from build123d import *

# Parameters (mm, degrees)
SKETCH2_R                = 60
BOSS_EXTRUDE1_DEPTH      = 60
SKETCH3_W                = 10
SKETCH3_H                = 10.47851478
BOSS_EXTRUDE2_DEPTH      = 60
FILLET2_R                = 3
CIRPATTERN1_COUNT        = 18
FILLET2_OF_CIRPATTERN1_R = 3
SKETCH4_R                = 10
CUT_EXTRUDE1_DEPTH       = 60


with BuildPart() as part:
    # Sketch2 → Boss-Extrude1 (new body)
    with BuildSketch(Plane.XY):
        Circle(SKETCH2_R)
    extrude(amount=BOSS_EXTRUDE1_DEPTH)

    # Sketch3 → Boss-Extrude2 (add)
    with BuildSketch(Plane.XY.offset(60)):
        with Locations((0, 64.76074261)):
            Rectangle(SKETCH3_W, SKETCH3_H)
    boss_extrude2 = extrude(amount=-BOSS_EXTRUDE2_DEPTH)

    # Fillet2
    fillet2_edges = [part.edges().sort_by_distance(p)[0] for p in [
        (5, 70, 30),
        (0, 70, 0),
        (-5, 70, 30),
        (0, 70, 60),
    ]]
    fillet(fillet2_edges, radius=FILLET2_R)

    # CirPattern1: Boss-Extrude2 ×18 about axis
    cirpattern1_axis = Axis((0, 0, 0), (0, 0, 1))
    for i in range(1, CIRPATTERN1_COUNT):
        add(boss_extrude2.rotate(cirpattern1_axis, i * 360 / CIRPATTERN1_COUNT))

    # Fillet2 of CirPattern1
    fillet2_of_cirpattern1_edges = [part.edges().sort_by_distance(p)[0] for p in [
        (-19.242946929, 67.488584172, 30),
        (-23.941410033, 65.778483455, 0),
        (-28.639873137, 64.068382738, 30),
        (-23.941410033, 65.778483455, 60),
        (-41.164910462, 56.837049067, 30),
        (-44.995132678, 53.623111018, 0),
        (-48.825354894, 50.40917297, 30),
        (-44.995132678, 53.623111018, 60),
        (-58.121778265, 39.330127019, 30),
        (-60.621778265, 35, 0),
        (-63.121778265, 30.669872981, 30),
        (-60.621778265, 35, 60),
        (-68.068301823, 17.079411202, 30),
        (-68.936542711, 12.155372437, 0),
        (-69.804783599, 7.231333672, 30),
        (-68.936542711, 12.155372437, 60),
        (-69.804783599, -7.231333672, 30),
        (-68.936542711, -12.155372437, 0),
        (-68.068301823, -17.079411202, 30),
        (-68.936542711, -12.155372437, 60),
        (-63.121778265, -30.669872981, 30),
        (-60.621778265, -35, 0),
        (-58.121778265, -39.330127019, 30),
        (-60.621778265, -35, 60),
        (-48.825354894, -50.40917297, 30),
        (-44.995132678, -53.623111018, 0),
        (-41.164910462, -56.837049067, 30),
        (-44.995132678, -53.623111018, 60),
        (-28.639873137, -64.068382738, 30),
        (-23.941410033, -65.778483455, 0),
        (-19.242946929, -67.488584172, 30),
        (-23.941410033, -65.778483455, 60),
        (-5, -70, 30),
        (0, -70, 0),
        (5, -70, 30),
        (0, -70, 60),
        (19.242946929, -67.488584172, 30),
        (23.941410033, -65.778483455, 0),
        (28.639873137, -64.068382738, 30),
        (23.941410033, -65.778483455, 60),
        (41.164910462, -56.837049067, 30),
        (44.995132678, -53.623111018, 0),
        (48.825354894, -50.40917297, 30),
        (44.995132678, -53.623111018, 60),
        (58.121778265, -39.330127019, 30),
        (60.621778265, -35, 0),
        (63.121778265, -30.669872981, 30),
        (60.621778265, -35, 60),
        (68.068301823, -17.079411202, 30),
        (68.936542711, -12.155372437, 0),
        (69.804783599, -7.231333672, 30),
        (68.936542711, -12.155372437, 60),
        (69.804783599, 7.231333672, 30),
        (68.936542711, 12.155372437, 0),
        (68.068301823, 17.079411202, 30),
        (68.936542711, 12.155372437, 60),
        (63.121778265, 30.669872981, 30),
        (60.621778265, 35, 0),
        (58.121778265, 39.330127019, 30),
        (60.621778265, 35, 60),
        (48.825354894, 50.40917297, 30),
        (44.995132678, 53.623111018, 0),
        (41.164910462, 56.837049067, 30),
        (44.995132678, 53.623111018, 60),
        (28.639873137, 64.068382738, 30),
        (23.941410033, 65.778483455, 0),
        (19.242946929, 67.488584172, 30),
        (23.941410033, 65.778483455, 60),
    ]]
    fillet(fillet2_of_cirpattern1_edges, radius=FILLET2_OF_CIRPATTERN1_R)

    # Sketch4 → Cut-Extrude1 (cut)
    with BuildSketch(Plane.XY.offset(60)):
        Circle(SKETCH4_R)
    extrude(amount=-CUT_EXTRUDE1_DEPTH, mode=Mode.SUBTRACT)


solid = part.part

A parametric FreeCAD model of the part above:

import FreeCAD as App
import Part
import Sketcher
from FreeCAD import Vector


def edges_at(feature, points):
    """Names of the edges that pass closest to the given points."""
    edges = feature.Shape.Edges
    near = lambda p: min(range(len(edges)), key=lambda i: edges[i].distToShape(Part.Vertex(*p))[0])
    return sorted({f"Edge{near(p) + 1}" for p in points})


def add_polygon(sketch, points):
    """Adds a closed chain of lines whose ends are joined by coincident constraints."""
    first, n = sketch.GeometryCount, len(points)
    for a, b in zip(points, points[1:] + points[:1]):
        sketch.addGeometry(Part.LineSegment(App.Vector(*a, 0), App.Vector(*b, 0)), False)
    for i in range(n):
        sketch.addConstraint(Sketcher.Constraint("Coincident", first + i, 2, first + (i + 1) % n, 1))

doc = App.newDocument("Part")
params = doc.addObject("Spreadsheet::Sheet", "Params")
for row, (alias, value) in enumerate([
    ("sketch1_diameter", "120 mm"),
    ("pad1_length", "60 mm"),
    ("sketch2_width", "10 mm"),
    ("pad2_length", "60 mm"),
    ("fillet_radius", "3 mm"),
    ("fillet2_radius", "3 mm"),
    ("sketch3_diameter", "20 mm"),
    ("pocket1_length", "60 mm"),
], start=1):
    params.set(f"A{row}", alias)
    params.set(f"B{row}", "=" + value)
    params.setAlias(f"B{row}", alias)

body = doc.addObject("PartDesign::Body", "Body")

# Sketch on XY plane
sketch1 = body.newObject("Sketcher::SketchObject", "Sketch")
sketch1.AttachmentSupport = (doc.getObject("XY_Plane"), [""])
sketch1.MapMode = "FlatFace"
sketch1.addGeometry(Part.Circle(Vector(0, 0, 0), Vector(0, 0, 1), 60), False)
sketch1.addConstraint(Sketcher.Constraint("Coincident", 0, 3, -1, 1))
sketch1.addConstraint(Sketcher.Constraint("Diameter", 0, 120.0))
sketch1.setExpression("Constraints[1]", "Params.sketch1_diameter")
pad1 = body.newObject("PartDesign::Pad", "Pad")
pad1.Profile = sketch1
pad1.setExpression("Length", "Params.pad1_length")

# Sketch on XY plane
sketch2 = body.newObject("Sketcher::SketchObject", "Sketch001")
sketch2.AttachmentSupport = (doc.getObject("XY_Plane"), [""])
sketch2.MapMode = "FlatFace"
sketch2.AttachmentOffset = App.Placement(Vector(0, 0, 60), App.Rotation())
add_polygon(sketch2, [(-5, 70), (-5, 60), (5, 60), (5, 70)])  # lines 0-3
sketch2.addConstraint(Sketcher.Constraint("Vertical", 0))
sketch2.addConstraint(Sketcher.Constraint("Horizontal", 1))
sketch2.addConstraint(Sketcher.Constraint("Vertical", 2))
sketch2.addConstraint(Sketcher.Constraint("Horizontal", 3))
sketch2.addConstraint(Sketcher.Constraint("DistanceX", 1, 1, 1, 2, 10.0))
sketch2.addConstraint(Sketcher.Constraint("DistanceX", 0, 2, -1, 1, 5.0))
sketch2.addConstraint(Sketcher.Constraint("DistanceY", -1, 1, 2, 2, 70.0))
sketch2.addConstraint(Sketcher.Constraint("DistanceY", 0, 2, 0, 1, 10.478515))
sketch2.setExpression("Constraints[8]", "Params.sketch2_width")
pad2 = body.newObject("PartDesign::Pad", "Pad001")
pad2.Profile = sketch2
pad2.setExpression("Length", "Params.pad2_length")
pad2.Reversed = True
doc.recompute()

fillet = body.newObject("PartDesign::Fillet", "Fillet")
fillet.Base = (pad2, edges_at(pad2, [
    (5, 70, 30),
    (0, 70, 0),
    (-5, 70, 30),
    (0, 70, 60),
]))
fillet.setExpression("Radius", "Params.fillet_radius")
doc.recompute()

polarpattern = body.newObject("PartDesign::PolarPattern", "PolarPattern")
polarpattern.Originals = [pad2]
polarpattern.Axis = (doc.getObject("Z_Axis"), [""])
polarpattern.Angle = 360
polarpattern.Occurrences = 18
body.Tip = polarpattern
doc.recompute()

fillet2 = body.newObject("PartDesign::Fillet", "Fillet001")
fillet2.Base = (polarpattern, edges_at(polarpattern, [
    (-19.243, 67.489, 30),
    (-23.941, 65.778, 0),
    (-28.64, 64.068, 30),
    (-23.941, 65.778, 60),
    (-41.165, 56.837, 30),
    (-44.995, 53.623, 0),
    (-48.825, 50.409, 30),
    (-44.995, 53.623, 60),
    (-58.122, 39.33, 30),
    (-60.622, 35, 0),
    (-63.122, 30.67, 30),
    (-60.622, 35, 60),
    (-68.068, 17.079, 30),
    (-68.937, 12.155, 0),
    (-69.805, 7.231, 30),
    (-68.937, 12.155, 60),
    (-69.805, -7.231, 30),
    (-68.937, -12.155, 0),
    (-68.068, -17.079, 30),
    (-68.937, -12.155, 60),
    (-63.122, -30.67, 30),
    (-60.622, -35, 0),
    (-58.122, -39.33, 30),
    (-60.622, -35, 60),
    (-48.825, -50.409, 30),
    (-44.995, -53.623, 0),
    (-41.165, -56.837, 30),
    (-44.995, -53.623, 60),
    (-28.64, -64.068, 30),
    (-23.941, -65.778, 0),
    (-19.243, -67.489, 30),
    (-23.941, -65.778, 60),
    (-5, -70, 30),
    (0, -70, 0),
    (5, -70, 30),
    (0, -70, 60),
    (19.243, -67.489, 30),
    (23.941, -65.778, 0),
    (28.64, -64.068, 30),
    (23.941, -65.778, 60),
    (41.165, -56.837, 30),
    (44.995, -53.623, 0),
    (48.825, -50.409, 30),
    (44.995, -53.623, 60),
    (58.122, -39.33, 30),
    (60.622, -35, 0),
    (63.122, -30.67, 30),
    (60.622, -35, 60),
    (68.068, -17.079, 30),
    (68.937, -12.155, 0),
    (69.805, -7.231, 30),
    (68.937, -12.155, 60),
    (69.805, 7.231, 30),
    (68.937, 12.155, 0),
    (68.068, 17.079, 30),
    (68.937, 12.155, 60),
    (63.122, 30.67, 30),
    (60.622, 35, 0),
    (58.122, 39.33, 30),
    (60.622, 35, 60),
    (48.825, 50.409, 30),
    (44.995, 53.623, 0),
    (41.165, 56.837, 30),
    (44.995, 53.623, 60),
    (28.64, 64.068, 30),
    (23.941, 65.778, 0),
    (19.243, 67.489, 30),
    (23.941, 65.778, 60),
]))
fillet2.setExpression("Radius", "Params.fillet2_radius")

# Sketch on XY plane
sketch3 = body.newObject("Sketcher::SketchObject", "Sketch002")
sketch3.AttachmentSupport = (doc.getObject("XY_Plane"), [""])
sketch3.MapMode = "FlatFace"
sketch3.AttachmentOffset = App.Placement(Vector(0, 0, 60), App.Rotation())
sketch3.addGeometry(Part.Circle(Vector(0, 0, 0), Vector(0, 0, 1), 10), False)
sketch3.addConstraint(Sketcher.Constraint("Coincident", 0, 3, -1, 1))
sketch3.addConstraint(Sketcher.Constraint("Diameter", 0, 20.0))
sketch3.setExpression("Constraints[1]", "Params.sketch3_diameter")
pocket1 = body.newObject("PartDesign::Pocket", "Pocket")
pocket1.Profile = sketch3
pocket1.setExpression("Length", "Params.pocket1_length")

doc.recompute()
